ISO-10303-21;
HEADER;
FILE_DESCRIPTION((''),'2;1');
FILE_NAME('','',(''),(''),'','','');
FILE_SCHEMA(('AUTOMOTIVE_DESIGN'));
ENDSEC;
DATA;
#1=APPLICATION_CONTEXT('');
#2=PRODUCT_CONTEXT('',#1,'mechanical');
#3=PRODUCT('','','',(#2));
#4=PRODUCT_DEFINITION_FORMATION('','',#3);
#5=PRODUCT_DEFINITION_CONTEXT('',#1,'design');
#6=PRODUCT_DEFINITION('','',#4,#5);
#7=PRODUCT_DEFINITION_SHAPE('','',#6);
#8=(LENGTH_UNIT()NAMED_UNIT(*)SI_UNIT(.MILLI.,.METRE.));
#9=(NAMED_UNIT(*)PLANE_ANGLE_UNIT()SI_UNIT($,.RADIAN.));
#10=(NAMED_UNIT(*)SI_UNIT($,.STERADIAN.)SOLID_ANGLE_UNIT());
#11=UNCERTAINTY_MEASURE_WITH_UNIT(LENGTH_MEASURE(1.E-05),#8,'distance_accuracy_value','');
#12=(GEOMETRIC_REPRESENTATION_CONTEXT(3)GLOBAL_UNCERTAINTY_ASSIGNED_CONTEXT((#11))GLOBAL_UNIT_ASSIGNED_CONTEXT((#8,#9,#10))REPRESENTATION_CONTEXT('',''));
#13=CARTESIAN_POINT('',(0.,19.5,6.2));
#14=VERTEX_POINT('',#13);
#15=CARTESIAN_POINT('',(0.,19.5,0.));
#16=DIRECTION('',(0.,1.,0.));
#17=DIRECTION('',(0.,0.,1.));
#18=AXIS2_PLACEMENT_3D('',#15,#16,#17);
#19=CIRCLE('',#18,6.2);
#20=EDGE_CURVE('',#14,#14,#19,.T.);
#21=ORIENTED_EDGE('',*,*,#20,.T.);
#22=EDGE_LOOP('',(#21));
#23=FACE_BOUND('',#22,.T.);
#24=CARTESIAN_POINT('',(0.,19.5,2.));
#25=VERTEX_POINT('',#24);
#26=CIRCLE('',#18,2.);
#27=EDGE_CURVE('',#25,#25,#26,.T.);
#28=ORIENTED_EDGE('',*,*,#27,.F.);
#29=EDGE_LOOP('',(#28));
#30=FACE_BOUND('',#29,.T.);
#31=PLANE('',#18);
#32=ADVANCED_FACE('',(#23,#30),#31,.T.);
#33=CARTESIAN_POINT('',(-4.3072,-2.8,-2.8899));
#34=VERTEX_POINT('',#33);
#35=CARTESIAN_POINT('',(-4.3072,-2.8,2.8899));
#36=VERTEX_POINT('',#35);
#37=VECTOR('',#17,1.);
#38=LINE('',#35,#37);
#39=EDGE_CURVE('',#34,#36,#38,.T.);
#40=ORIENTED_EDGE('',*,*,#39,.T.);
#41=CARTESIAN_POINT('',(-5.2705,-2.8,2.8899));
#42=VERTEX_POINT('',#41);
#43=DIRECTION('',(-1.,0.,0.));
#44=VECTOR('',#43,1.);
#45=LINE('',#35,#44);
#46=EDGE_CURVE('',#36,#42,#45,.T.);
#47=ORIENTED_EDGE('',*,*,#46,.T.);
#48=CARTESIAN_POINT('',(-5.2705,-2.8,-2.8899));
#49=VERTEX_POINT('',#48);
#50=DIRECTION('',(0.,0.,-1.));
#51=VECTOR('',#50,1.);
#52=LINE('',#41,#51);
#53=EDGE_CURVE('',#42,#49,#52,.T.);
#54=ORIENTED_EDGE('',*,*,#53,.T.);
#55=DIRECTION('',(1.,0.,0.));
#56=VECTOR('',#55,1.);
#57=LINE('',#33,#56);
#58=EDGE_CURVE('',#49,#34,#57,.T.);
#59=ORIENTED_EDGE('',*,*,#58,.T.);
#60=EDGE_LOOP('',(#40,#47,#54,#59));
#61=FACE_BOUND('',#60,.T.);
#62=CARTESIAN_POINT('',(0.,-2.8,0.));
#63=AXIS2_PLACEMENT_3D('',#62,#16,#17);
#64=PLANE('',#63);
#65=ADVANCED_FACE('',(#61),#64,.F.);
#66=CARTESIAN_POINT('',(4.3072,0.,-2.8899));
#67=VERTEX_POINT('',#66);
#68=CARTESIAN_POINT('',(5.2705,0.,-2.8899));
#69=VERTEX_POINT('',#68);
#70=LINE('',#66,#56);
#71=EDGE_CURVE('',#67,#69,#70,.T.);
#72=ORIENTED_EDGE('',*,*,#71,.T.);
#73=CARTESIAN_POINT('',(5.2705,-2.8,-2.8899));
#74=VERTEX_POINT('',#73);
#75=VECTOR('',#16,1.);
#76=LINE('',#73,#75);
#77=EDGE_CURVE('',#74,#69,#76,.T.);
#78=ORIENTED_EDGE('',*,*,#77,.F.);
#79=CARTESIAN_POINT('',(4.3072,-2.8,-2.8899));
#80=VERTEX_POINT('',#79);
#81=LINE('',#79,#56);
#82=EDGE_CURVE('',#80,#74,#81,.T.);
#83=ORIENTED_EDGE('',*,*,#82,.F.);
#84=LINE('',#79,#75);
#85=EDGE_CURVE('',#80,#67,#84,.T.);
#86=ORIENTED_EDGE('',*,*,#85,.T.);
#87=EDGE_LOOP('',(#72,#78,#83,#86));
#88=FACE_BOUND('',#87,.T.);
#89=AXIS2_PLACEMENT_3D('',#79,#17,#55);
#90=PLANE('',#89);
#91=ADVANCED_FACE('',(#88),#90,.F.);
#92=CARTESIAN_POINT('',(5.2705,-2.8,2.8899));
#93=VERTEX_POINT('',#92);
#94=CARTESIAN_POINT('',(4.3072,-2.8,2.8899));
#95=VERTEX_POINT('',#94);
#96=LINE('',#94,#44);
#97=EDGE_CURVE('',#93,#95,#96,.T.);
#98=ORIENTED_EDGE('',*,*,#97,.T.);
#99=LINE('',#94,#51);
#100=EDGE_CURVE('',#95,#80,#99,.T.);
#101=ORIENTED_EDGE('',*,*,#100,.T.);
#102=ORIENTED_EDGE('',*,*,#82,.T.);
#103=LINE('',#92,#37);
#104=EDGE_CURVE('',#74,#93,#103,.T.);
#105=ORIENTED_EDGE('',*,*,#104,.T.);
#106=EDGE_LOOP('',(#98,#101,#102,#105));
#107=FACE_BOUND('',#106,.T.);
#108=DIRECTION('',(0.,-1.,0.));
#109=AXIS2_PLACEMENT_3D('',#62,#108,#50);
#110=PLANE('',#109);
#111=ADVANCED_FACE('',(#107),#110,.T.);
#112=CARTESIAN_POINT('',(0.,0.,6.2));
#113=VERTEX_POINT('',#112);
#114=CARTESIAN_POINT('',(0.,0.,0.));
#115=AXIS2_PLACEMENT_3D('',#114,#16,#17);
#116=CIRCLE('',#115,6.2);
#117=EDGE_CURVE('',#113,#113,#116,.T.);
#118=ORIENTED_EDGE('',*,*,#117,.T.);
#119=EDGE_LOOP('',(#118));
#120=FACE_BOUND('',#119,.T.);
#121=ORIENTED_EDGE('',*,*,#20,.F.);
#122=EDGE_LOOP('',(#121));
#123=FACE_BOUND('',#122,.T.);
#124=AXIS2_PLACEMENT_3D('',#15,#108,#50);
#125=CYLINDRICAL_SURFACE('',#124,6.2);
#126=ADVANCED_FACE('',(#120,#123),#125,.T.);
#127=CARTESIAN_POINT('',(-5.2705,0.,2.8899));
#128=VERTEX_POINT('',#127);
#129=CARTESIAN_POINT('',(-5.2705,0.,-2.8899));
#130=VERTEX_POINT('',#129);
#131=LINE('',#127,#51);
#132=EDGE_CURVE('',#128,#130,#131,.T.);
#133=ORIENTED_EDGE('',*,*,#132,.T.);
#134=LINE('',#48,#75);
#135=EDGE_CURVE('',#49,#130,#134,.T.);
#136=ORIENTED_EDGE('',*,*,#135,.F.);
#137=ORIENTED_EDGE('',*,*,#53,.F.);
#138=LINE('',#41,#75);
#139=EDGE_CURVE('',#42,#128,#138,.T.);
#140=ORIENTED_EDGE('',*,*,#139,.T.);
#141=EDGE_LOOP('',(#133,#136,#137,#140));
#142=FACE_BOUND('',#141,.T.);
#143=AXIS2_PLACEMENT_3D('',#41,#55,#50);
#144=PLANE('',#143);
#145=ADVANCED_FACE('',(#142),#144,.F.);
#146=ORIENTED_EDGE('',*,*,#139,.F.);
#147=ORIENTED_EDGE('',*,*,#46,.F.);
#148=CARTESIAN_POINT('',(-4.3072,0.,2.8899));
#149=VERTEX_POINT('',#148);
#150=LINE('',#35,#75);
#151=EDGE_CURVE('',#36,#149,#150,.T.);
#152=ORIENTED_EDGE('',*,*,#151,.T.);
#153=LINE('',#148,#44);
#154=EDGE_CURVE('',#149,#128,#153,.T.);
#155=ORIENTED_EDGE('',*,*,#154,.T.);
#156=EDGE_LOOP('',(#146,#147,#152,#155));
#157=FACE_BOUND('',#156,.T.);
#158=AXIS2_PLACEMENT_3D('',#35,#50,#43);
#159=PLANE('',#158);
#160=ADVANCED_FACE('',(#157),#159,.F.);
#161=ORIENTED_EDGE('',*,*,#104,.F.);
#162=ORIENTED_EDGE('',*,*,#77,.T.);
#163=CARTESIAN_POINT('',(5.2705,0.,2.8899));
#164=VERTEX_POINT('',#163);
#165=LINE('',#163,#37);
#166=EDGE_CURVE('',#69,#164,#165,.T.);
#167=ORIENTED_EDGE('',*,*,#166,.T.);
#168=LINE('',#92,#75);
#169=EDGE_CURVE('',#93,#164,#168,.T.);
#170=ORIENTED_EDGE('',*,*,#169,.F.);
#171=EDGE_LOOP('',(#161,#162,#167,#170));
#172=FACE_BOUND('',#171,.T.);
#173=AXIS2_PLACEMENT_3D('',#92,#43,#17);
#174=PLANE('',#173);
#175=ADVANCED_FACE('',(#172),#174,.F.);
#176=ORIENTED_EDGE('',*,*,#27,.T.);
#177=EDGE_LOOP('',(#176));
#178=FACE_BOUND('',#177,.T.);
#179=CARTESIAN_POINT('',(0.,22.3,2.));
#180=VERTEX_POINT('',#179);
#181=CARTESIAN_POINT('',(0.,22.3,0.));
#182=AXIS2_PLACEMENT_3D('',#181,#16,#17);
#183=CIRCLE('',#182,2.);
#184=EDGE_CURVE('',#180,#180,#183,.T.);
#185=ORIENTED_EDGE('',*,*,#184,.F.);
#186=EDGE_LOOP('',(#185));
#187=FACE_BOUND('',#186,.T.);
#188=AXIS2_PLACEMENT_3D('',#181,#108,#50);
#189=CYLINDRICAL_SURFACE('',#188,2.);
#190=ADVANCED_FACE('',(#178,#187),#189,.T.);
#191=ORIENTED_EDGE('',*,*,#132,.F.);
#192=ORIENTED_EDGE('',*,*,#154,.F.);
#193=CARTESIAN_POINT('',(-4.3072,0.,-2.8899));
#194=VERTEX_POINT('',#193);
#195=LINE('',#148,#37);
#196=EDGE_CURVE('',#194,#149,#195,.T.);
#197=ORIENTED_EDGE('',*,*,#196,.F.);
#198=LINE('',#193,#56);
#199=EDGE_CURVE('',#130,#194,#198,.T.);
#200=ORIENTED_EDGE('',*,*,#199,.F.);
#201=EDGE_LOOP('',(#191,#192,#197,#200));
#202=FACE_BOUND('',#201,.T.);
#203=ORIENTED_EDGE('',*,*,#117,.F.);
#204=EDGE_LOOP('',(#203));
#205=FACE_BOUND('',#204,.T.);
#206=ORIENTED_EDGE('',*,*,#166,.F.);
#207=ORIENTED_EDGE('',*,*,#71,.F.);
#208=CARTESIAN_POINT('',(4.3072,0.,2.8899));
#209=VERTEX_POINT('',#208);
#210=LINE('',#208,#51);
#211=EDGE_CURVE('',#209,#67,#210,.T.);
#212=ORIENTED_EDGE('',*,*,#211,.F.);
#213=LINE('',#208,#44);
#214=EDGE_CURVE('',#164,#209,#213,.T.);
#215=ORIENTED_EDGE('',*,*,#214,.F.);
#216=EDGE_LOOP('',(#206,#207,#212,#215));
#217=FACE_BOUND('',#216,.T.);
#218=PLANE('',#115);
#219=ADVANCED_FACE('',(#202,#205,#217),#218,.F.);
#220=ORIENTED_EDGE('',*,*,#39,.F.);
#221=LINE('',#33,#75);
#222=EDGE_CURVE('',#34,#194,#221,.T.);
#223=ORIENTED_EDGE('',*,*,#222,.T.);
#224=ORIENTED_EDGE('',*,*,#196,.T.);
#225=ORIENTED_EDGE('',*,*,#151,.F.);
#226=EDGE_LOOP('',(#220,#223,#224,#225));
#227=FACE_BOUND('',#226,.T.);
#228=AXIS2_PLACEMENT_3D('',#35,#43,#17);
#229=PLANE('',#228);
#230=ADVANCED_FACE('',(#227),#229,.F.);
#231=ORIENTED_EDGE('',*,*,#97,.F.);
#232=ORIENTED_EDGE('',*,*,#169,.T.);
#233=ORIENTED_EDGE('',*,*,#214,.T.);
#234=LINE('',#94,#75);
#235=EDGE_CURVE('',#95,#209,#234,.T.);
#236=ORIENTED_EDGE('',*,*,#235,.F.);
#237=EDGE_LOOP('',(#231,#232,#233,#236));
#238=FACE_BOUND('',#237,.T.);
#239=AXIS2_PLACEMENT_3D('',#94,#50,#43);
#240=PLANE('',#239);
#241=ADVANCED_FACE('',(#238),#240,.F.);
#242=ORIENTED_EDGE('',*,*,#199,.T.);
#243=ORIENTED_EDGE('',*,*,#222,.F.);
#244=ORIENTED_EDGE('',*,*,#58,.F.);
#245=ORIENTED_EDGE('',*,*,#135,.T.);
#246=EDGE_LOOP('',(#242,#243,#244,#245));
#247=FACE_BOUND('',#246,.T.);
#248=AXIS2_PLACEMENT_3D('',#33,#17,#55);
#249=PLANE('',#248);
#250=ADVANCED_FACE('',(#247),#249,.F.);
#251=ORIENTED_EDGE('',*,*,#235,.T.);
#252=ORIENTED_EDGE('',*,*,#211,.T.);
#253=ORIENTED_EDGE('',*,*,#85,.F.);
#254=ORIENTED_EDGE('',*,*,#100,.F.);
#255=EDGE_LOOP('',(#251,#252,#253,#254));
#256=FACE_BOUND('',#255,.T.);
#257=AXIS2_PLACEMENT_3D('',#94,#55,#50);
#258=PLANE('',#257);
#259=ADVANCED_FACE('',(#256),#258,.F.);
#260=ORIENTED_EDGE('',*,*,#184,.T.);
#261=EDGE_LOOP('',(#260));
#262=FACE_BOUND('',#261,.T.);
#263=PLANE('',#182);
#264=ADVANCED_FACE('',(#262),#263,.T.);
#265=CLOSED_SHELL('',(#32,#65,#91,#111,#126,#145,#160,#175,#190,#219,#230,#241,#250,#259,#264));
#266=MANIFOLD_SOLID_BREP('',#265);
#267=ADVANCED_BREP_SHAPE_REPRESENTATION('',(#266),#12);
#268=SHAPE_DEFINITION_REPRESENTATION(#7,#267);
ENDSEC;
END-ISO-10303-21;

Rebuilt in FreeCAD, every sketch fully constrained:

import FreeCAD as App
import Part
import Sketcher

V = App.Vector

doc = App.newDocument("Part")
body = doc.addObject("PartDesign::Body", "Body")

# Sketch on XZ plane
sketch1 = body.newObject("Sketcher::SketchObject", "Sketch")
sketch1.AttachmentSupport = (doc.getObject("XZ_Plane"), [""])
sketch1.MapMode = "FlatFace"
sketch1.addGeometry(Part.Circle(V(0, 0, 0), V(0, 0, 1), 6), False)
sketch1.addConstraint([
    Sketcher.Constraint("Coincident", 0, 3, -1, 1),
    Sketcher.Constraint("Diameter", 0, 12.4),
])
pad1 = body.newObject("PartDesign::Pad", "Pad")
pad1.Profile = sketch1
pad1.Length = 19.5
pad1.Reversed = True

# Sketch on XZ plane
sketch2 = body.newObject("Sketcher::SketchObject", "Sketch001")
sketch2.AttachmentSupport = (doc.getObject("XZ_Plane"), [""])
sketch2.MapMode = "FlatFace"
sketch2.AttachmentOffset = App.Placement(V(0, 0, -19.5), App.Rotation())
sketch2.addGeometry(Part.Circle(V(0, 0, 0), V(0, 0, 1), 2), False)
sketch2.addConstraint([
    Sketcher.Constraint("Coincident", 0, 3, -1, 1),
    Sketcher.Constraint("Diameter", 0, 4.0),
])
pad2 = body.newObject("PartDesign::Pad", "Pad001")
pad2.Profile = sketch2
pad2.Length = 2.8
pad2.Reversed = True

# Sketch on XZ plane
sketch3 = body.newObject("Sketcher::SketchObject", "Sketch002")
sketch3.AttachmentSupport = (doc.getObject("XZ_Plane"), [""])
sketch3.MapMode = "FlatFace"
sketch3.addGeometry([
    Part.LineSegment(V(4.3, 2.9, 0), V(4.3, -2.9, 0)),  # 0
    Part.LineSegment(V(4.3, -2.9, 0), V(5.3, -2.9, 0)),  # 1
    Part.LineSegment(V(5.3, -2.9, 0), V(5.3, 2.9, 0)),  # 2
    Part.LineSegment(V(5.3, 2.9, 0), V(4.3, 2.9, 0)),  # 3
    Part.LineSegment(V(-5.3, 2.9, 0), V(-5.3, -2.9, 0)),  # 4
    Part.LineSegment(V(-5.3, -2.9, 0), V(-4.3, -2.9, 0)),  # 5
    Part.LineSegment(V(-4.3, -2.9, 0), V(-4.3, 2.9, 0)),  # 6
    Part.LineSegment(V(-4.3, 2.9, 0), V(-5.3, 2.9, 0)),  # 7
], False)
sketch3.addConstraint([
    Sketcher.Constraint("Coincident", 0, 2, 1, 1),
    Sketcher.Constraint("Coincident", 1, 2, 2, 1),
    Sketcher.Constraint("Coincident", 2, 2, 3, 1),
    Sketcher.Constraint("Coincident", 3, 2, 0, 1),
    Sketcher.Constraint("Coincident", 4, 2, 5, 1),
    Sketcher.Constraint("Coincident", 5, 2, 6, 1),
    Sketcher.Constraint("Coincident", 6, 2, 7, 1),
    Sketcher.Constraint("Coincident", 7, 2, 4, 1),
    Sketcher.Constraint("Vertical", 0),
    Sketcher.Constraint("Horizontal", 1),
    Sketcher.Constraint("Vertical", 2),
    Sketcher.Constraint("Horizontal", 3),
    Sketcher.Constraint("Vertical", 4),
    Sketcher.Constraint("Horizontal", 5),
    Sketcher.Constraint("Vertical", 6),
    Sketcher.Constraint("Horizontal", 7),
    Sketcher.Constraint("Symmetric", 2, 2, 4, 2, -1, 1),
    Sketcher.Constraint("Symmetric", 0, 2, 6, 2, -1, 1),
    Sketcher.Constraint("Horizontal", 1, 2, 4, 2),
    Sketcher.Constraint("DistanceX", 1, 1, 1, 2, 0.9633),
    Sketcher.Constraint("DistanceY", 0, 2, 0, 1, 5.7798),
    Sketcher.Constraint("DistanceX", 4, 2, 1, 2, 10.541),
])
pad3 = body.newObject("PartDesign::Pad", "Pad002")
pad3.Profile = sketch3
pad3.Length = 2.8

doc.recompute()
